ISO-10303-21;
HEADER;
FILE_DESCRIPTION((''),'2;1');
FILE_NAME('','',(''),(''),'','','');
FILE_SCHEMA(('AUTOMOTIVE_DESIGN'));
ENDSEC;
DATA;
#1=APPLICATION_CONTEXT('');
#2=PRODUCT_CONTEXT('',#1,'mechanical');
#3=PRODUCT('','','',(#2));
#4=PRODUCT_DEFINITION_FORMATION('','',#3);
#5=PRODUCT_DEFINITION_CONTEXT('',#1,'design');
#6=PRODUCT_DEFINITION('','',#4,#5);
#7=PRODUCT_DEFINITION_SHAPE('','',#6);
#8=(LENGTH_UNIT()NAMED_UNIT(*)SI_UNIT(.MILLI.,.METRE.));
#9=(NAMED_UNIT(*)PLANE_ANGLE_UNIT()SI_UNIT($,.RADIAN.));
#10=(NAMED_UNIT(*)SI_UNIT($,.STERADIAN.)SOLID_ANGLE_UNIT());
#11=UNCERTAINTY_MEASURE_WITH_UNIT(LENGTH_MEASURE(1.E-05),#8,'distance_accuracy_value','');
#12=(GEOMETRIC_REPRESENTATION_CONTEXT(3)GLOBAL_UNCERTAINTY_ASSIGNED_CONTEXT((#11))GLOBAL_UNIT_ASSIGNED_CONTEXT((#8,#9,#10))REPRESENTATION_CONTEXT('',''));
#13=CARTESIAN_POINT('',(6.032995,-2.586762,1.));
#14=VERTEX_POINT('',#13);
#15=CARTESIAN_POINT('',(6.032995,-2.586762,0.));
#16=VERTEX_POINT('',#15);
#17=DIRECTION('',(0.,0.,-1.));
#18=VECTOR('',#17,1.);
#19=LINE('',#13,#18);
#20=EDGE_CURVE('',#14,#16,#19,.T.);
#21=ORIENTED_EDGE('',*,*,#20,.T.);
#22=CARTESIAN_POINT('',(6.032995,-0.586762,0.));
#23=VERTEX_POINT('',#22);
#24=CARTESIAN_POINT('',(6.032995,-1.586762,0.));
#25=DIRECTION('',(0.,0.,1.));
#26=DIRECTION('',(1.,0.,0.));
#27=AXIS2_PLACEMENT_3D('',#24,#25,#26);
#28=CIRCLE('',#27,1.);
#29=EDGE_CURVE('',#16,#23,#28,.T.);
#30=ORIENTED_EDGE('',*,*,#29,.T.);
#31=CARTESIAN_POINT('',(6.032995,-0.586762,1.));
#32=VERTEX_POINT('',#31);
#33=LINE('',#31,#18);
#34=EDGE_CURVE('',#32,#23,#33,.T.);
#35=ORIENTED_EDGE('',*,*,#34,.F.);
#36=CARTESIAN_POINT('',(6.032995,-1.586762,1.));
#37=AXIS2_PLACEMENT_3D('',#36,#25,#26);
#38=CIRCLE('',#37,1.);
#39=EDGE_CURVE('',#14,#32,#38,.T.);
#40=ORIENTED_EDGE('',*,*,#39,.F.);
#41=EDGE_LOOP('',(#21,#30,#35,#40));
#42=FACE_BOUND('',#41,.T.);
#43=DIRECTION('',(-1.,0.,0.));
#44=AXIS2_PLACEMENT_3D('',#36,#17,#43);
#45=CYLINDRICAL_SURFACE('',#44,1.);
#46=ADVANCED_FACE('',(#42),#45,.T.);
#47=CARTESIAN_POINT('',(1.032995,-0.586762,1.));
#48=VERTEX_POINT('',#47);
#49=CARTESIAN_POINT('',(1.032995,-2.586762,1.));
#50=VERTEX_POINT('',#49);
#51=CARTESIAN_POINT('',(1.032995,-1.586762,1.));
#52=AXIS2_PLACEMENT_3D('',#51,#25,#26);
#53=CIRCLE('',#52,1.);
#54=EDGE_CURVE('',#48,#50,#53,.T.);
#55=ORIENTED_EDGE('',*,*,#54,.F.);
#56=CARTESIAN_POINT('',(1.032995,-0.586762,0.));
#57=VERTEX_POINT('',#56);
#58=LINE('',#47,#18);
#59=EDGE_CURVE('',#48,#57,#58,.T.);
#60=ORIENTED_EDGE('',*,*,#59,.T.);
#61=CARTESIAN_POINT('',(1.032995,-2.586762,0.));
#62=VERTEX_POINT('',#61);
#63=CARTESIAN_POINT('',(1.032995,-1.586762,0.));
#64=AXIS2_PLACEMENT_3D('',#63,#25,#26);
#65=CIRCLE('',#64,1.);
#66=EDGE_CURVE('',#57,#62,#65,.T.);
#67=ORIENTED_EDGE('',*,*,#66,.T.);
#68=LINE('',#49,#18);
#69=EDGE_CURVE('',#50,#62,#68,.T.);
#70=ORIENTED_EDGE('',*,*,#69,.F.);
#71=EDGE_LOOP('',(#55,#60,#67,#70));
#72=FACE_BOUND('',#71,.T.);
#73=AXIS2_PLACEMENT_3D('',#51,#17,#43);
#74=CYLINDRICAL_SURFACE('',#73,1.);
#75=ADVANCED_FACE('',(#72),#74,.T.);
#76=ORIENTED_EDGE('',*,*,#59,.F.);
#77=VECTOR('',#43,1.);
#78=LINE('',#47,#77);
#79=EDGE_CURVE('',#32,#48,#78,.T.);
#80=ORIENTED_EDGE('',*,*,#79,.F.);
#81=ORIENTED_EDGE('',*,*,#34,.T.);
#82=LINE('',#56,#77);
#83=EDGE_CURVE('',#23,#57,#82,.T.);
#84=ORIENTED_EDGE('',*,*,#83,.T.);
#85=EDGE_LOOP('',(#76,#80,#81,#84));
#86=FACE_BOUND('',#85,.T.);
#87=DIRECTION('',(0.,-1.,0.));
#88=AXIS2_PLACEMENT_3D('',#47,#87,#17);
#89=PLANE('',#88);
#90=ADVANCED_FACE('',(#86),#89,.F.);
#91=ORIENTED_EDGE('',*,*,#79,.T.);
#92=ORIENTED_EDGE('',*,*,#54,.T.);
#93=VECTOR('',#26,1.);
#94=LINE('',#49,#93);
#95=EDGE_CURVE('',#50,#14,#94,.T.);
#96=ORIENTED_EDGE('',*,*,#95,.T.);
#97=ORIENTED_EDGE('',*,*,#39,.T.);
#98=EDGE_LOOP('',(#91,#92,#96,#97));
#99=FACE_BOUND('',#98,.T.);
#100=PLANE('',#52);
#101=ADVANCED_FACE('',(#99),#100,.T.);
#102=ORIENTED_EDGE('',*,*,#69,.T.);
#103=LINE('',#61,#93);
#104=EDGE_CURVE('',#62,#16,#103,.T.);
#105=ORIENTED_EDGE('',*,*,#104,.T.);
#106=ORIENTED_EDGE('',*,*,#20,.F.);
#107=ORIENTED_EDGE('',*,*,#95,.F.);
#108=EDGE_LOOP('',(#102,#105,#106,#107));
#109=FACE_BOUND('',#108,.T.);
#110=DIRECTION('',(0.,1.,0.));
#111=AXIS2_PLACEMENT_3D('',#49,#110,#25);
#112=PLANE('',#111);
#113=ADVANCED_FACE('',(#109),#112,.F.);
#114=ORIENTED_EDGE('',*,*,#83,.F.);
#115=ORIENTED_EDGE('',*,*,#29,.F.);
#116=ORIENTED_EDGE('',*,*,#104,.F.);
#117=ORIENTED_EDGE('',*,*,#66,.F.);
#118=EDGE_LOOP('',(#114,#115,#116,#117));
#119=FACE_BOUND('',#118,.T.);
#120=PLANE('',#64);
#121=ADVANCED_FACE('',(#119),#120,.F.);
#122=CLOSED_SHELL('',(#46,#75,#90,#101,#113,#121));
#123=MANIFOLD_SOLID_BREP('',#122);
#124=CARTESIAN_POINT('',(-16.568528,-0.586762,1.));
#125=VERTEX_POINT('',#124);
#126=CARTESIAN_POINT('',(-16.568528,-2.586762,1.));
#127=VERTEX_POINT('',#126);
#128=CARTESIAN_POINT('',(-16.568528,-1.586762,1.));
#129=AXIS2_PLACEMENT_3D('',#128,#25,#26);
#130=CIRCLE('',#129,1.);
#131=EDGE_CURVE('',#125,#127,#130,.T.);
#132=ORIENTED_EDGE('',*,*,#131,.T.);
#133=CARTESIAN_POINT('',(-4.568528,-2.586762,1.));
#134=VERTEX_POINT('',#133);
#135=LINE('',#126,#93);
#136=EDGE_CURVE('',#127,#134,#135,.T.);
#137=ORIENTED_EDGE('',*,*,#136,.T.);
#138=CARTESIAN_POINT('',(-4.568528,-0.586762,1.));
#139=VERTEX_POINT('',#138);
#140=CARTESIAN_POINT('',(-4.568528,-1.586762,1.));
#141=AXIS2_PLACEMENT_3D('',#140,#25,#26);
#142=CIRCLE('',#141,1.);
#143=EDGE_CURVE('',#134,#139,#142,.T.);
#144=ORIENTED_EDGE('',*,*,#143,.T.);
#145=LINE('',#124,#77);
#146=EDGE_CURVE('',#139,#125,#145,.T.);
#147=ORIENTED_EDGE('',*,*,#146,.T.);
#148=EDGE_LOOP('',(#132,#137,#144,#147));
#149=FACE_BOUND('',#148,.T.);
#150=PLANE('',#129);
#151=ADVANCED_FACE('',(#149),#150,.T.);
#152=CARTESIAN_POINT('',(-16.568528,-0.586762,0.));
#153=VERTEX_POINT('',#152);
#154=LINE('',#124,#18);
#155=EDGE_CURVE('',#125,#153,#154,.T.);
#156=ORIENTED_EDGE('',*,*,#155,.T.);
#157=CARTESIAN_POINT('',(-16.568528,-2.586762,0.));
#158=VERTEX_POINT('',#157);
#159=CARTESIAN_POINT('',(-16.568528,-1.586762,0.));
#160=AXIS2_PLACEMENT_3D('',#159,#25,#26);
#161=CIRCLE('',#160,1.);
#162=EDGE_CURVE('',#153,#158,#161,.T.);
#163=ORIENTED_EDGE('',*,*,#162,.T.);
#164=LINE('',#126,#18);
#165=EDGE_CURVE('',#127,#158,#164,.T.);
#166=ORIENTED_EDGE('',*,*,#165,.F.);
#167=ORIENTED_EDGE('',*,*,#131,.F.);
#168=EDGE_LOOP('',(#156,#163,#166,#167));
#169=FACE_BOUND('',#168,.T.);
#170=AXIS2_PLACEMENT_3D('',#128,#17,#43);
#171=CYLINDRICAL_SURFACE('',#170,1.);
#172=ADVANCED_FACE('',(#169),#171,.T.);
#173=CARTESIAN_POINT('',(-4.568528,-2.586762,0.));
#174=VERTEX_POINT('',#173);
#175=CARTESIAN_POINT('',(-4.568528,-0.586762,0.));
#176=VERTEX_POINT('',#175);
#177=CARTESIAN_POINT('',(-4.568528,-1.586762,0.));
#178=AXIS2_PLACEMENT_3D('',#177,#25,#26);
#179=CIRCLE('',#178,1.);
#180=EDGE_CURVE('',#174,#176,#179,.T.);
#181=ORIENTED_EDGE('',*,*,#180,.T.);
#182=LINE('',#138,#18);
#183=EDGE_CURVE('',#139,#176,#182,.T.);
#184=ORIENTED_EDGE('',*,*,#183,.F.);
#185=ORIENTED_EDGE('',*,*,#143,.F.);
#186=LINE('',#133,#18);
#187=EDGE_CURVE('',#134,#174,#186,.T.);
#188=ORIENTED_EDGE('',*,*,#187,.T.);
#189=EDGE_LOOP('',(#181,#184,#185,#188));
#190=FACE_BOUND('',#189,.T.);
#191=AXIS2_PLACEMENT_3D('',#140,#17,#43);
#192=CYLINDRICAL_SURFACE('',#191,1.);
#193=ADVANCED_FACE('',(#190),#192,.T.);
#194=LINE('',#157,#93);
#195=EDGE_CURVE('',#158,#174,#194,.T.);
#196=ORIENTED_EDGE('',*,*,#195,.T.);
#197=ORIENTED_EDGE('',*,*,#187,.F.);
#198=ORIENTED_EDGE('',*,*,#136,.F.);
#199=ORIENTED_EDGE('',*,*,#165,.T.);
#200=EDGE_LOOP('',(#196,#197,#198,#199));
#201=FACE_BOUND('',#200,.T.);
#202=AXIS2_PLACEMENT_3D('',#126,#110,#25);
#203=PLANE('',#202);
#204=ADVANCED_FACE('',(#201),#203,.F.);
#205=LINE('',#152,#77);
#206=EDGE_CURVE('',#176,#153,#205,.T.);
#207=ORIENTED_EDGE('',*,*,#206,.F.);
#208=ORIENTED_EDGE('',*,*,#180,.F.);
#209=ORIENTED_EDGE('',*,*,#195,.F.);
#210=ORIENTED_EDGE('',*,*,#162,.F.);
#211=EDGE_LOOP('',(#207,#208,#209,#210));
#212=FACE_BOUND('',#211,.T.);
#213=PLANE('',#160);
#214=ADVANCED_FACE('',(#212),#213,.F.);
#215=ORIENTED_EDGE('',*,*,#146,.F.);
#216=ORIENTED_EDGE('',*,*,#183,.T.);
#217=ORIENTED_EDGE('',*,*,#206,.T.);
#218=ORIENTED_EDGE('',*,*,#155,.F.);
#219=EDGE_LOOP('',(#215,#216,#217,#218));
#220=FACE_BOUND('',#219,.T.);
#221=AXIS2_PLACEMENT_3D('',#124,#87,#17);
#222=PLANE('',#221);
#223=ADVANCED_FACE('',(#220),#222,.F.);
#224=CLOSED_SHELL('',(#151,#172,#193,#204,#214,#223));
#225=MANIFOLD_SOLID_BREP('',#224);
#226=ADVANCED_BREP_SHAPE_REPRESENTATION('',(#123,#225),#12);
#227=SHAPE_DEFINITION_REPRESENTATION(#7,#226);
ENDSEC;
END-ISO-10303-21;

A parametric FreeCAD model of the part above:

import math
import FreeCAD as App
import Part
import Sketcher

doc = App.newDocument("Part")
body = doc.addObject("PartDesign::Body", "Body")

sketch1 = body.newObject("Sketcher::SketchObject", "Sketch")
sketch1.AttachmentSupport = (doc.getObject("XY_Plane"), [""])
sketch1.MapMode = "FlatFace"
sketch1.addGeometry(Part.LineSegment(App.Vector(-4.6, -0.6, 0), App.Vector(-16.6, -0.6, 0)), False)
sketch1.addGeometry(Part.ArcOfCircle(Part.Circle(App.Vector(-16.6, -1.6, 0), App.Vector(0, 0, 1), 1), math.radians(90), math.radians(270)), False)
sketch1.addGeometry(Part.LineSegment(App.Vector(-16.6, -2.6, 0), App.Vector(-4.6, -2.6, 0)), False)
sketch1.addGeometry(Part.ArcOfCircle(Part.Circle(App.Vector(-4.6, -1.6, 0), App.Vector(0, 0, 1), 1), math.radians(-90), math.radians(90)), False)
sketch1.addConstraint(Sketcher.Constraint("Tangent", 0, 2, 1, 1))
sketch1.addConstraint(Sketcher.Constraint("Tangent", 1, 2, 2, 1))
sketch1.addConstraint(Sketcher.Constraint("Tangent", 2, 2, 3, 1))
sketch1.addConstraint(Sketcher.Constraint("Tangent", 3, 2, 0, 1))
sketch1.addConstraint(Sketcher.Constraint("Horizontal", 0))
sketch1.addConstraint(Sketcher.Constraint("Horizontal", 2))
sketch1.addConstraint(Sketcher.Constraint("Radius", 1, 1.0))
sketch1.addConstraint(Sketcher.Constraint("DistanceX", 0, 2, 0, 1, 12.0))
sketch1.addConstraint(Sketcher.Constraint("DistanceX", 1, 3, -1, 1, 16.568528))
sketch1.addConstraint(Sketcher.Constraint("DistanceY", 1, 3, -1, 1, 1.586762))
pad1 = body.newObject("PartDesign::Pad", "Pad")
pad1.Profile = sketch1
pad1.Length = 1
body2 = doc.addObject("PartDesign::Body", "Body001")

sketch2 = body2.newObject("Sketcher::SketchObject", "Sketch001")
sketch2.AttachmentSupport = (doc.getObject("XY_Plane001"), [""])
sketch2.MapMode = "FlatFace"
sketch2.addGeometry(Part.LineSegment(App.Vector(6, -0.6, 0), App.Vector(1, -0.6, 0)), False)
sketch2.addGeometry(Part.ArcOfCircle(Part.Circle(App.Vector(1, -1.6, 0), App.Vector(0, 0, 1), 1), math.radians(90), math.radians(270)), False)
sketch2.addGeometry(Part.LineSegment(App.Vector(1, -2.6, 0), App.Vector(6, -2.6, 0)), False)
sketch2.addGeometry(Part.ArcOfCircle(Part.Circle(App.Vector(6, -1.6, 0), App.Vector(0, 0, 1), 1), math.radians(-90), math.radians(90)), False)
sketch2.addConstraint(Sketcher.Constraint("Tangent", 0, 2, 1, 1))
sketch2.addConstraint(Sketcher.Constraint("Tangent", 1, 2, 2, 1))
sketch2.addConstraint(Sketcher.Constraint("Tangent", 2, 2, 3, 1))
sketch2.addConstraint(Sketcher.Constraint("Tangent", 3, 2, 0, 1))
sketch2.addConstraint(Sketcher.Constraint("Horizontal", 0))
sketch2.addConstraint(Sketcher.Constraint("Horizontal", 2))
sketch2.addConstraint(Sketcher.Constraint("Radius", 1, 1.0))
sketch2.addConstraint(Sketcher.Constraint("DistanceX", 0, 2, 0, 1, 5.0))
sketch2.addConstraint(Sketcher.Constraint("DistanceX", -1, 1, 1, 3, 1.032995))
sketch2.addConstraint(Sketcher.Constraint("DistanceY", 1, 3, -1, 1, 1.586762))
pad2 = body2.newObject("PartDesign::Pad", "Pad001")
pad2.Profile = sketch2
pad2.Length = 1

doc.recompute()
